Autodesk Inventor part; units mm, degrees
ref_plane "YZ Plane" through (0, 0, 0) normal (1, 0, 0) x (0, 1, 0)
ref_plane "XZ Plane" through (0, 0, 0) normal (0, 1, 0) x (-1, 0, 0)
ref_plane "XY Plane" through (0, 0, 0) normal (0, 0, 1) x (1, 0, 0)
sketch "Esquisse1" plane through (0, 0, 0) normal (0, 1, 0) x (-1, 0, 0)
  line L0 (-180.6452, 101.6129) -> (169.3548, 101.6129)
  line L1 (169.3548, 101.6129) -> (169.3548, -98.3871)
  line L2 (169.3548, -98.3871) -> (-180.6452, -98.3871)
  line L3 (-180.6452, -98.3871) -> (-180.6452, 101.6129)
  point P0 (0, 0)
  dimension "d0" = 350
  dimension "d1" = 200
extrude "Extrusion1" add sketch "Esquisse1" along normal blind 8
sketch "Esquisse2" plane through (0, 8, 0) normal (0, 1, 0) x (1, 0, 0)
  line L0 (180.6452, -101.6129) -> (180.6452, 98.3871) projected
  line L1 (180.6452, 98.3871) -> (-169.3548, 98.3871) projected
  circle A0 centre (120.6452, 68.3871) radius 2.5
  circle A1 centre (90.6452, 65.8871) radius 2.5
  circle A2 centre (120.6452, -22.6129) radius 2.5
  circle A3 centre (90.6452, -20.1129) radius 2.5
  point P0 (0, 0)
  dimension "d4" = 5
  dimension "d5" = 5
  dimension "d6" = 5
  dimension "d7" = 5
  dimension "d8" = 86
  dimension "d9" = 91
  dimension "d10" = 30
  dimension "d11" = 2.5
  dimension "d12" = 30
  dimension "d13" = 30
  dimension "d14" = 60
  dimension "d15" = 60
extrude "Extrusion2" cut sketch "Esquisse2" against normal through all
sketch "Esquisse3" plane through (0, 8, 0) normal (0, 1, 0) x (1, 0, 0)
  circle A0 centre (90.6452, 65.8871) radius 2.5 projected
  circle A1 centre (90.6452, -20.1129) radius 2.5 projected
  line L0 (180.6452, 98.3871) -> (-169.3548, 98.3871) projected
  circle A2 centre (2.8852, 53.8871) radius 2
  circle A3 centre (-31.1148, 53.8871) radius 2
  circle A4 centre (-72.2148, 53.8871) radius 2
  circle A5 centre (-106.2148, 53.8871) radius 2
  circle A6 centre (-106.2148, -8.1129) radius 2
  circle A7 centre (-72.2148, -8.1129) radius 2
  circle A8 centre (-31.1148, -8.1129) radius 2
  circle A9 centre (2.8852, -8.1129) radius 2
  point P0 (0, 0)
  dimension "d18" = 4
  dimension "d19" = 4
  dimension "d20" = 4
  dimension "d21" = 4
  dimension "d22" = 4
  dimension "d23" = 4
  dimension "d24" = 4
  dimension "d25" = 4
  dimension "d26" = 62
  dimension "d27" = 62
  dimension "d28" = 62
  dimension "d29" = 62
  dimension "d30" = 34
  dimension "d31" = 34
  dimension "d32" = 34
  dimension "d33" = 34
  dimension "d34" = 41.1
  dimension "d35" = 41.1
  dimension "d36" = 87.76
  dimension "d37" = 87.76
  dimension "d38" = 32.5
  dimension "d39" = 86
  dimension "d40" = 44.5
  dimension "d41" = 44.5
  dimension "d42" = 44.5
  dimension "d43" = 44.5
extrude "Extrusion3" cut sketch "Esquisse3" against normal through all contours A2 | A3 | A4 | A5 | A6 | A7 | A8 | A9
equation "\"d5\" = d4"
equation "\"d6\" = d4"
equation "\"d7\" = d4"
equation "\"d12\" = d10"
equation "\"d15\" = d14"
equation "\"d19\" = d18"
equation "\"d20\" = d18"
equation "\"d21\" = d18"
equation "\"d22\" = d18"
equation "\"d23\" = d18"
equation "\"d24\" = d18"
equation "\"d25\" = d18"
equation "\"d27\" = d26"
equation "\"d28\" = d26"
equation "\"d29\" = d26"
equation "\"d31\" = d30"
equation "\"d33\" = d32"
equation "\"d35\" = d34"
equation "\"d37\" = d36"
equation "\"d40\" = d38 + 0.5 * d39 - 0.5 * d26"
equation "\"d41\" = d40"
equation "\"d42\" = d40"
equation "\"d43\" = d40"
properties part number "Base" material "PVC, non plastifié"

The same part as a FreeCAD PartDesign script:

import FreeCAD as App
import Part
import Sketcher
from FreeCAD import Vector

doc = App.newDocument("Part")
params = doc.addObject("Spreadsheet::Sheet", "Params")
for row, (alias, value) in enumerate([
    ("sketch1_width", "350 mm"),
    ("sketch1_height", "200 mm"),
    ("pad1_length", "8 mm"),
    ("sketch2_diameter", "5 mm"),
    ("sketch3_diameter", "4 mm"),
], start=1):
    params.set(f"A{row}", alias)
    params.set(f"B{row}", "=" + value)
    params.setAlias(f"B{row}", alias)

body = doc.addObject("PartDesign::Body", "Body")

# Sketch on XZ plane
sketch1 = body.newObject("Sketcher::SketchObject", "Sketch")
sketch1.AttachmentSupport = (doc.getObject("XZ_Plane"), [""])
sketch1.MapMode = "FlatFace"
sketch1.addGeometry([
    Part.LineSegment(Vector(-169, 102, 0), Vector(181, 102, 0)),
    Part.LineSegment(Vector(181, 102, 0), Vector(181, -98, 0)),
    Part.LineSegment(Vector(181, -98, 0), Vector(-169, -98, 0)),
    Part.LineSegment(Vector(-169, -98, 0), Vector(-169, 102, 0)),
], False)
sketch1.addConstraint([
    Sketcher.Constraint("Coincident", 0, 2, 1, 1),
    Sketcher.Constraint("Coincident", 1, 2, 2, 1),
    Sketcher.Constraint("Coincident", 2, 2, 3, 1),
    Sketcher.Constraint("Coincident", 3, 2, 0, 1),
    Sketcher.Constraint("Horizontal", 0),
    Sketcher.Constraint("Vertical", 1),
    Sketcher.Constraint("Horizontal", 2),
    Sketcher.Constraint("Vertical", 3),
    Sketcher.Constraint("DistanceX", 0, 1, 0, 2, 350.0),
    Sketcher.Constraint("DistanceY", 1, 2, 1, 1, 200.0),
    Sketcher.Constraint("DistanceY", -1, 1, 0, 2, 101.613),
    Sketcher.Constraint("DistanceX", -1, 1, 0, 2, 180.6452),
])
sketch1.setExpression("Constraints[8]", "Params.sketch1_width")
sketch1.setExpression("Constraints[9]", "Params.sketch1_height")
pad1 = body.newObject("PartDesign::Pad", "Pad")
pad1.Profile = sketch1
pad1.setExpression("Length", "Params.pad1_length")
pad1.Reversed = True

# Sketch on XZ plane
sketch2 = body.newObject("Sketcher::SketchObject", "Sketch001")
sketch2.AttachmentSupport = (doc.getObject("XZ_Plane"), [""])
sketch2.MapMode = "FlatFace"
sketch2.AttachmentOffset = App.Placement(Vector(0, 0, -8), App.Rotation())
sketch2.addGeometry([
    Part.Circle(Vector(120.6, -68.4, 0), Vector(0, 0, 1), 2.5),
    Part.Circle(Vector(90.6, -65.9, 0), Vector(0, 0, 1), 2.5),
    Part.Circle(Vector(120.6, 22.6, 0), Vector(0, 0, 1), 2.5),
    Part.Circle(Vector(90.6, 20.1, 0), Vector(0, 0, 1), 2.5),
], False)
sketch2.addConstraint([
    Sketcher.Constraint("Equal", 0, 1),
    Sketcher.Constraint("Equal", 1, 2),
    Sketcher.Constraint("Equal", 2, 3),
    Sketcher.Constraint("Vertical", 0, 3, 2, 3),
    Sketcher.Constraint("Vertical", 1, 3, 3, 3),
    Sketcher.Constraint("Diameter", 0, 5.0),
    Sketcher.Constraint("DistanceX", 1, 3, 0, 3, 30.0),
    Sketcher.Constraint("DistanceY", 0, 3, 2, 3, 91.0),
    Sketcher.Constraint("DistanceY", 1, 3, 3, 3, 86.0),
    Sketcher.Constraint("DistanceY", 0, 3, 1, 3, 2.5),
    Sketcher.Constraint("DistanceY", 0, 3, -1, 1, 68.387),
    Sketcher.Constraint("DistanceX", -1, 1, 0, 3, 120.6452),
])
sketch2.setExpression("Constraints[5]", "Params.sketch2_diameter")
pocket1 = body.newObject("PartDesign::Pocket", "Pocket")
pocket1.Profile = sketch2
pocket1.Type = "ThroughAll"
pocket1.Reversed = True

# Sketch on XZ plane
sketch3 = body.newObject("Sketcher::SketchObject", "Sketch002")
sketch3.AttachmentSupport = (doc.getObject("XZ_Plane"), [""])
sketch3.MapMode = "FlatFace"
sketch3.AttachmentOffset = App.Placement(Vector(0, 0, -8), App.Rotation())
sketch3.addGeometry([
    Part.Circle(Vector(2.9, -53.9, 0), Vector(0, 0, 1), 2),  # 0
    Part.Circle(Vector(-31.1, -53.9, 0), Vector(0, 0, 1), 2),  # 1
    Part.Circle(Vector(-72.2, -53.9, 0), Vector(0, 0, 1), 2),  # 2
    Part.Circle(Vector(-106.2, -53.9, 0), Vector(0, 0, 1), 2),  # 3
    Part.Circle(Vector(-106.2, 8.1, 0), Vector(0, 0, 1), 2),  # 4
    Part.Circle(Vector(-72.2, 8.1, 0), Vector(0, 0, 1), 2),  # 5
    Part.Circle(Vector(-31.1, 8.1, 0), Vector(0, 0, 1), 2),  # 6
    Part.Circle(Vector(2.9, 8.1, 0), Vector(0, 0, 1), 2),  # 7
], False)
sketch3.addConstraint([
    Sketcher.Constraint("Equal", 0, 1),
    Sketcher.Constraint("Equal", 1, 2),
    Sketcher.Constraint("Equal", 2, 3),
    Sketcher.Constraint("Equal", 3, 4),
    Sketcher.Constraint("Equal", 4, 5),
    Sketcher.Constraint("Equal", 5, 6),
    Sketcher.Constraint("Equal", 6, 7),
    Sketcher.Constraint("Horizontal", 0, 3, 1, 3),
    Sketcher.Constraint("Horizontal", 1, 3, 2, 3),
    Sketcher.Constraint("Horizontal", 2, 3, 3, 3),
    Sketcher.Constraint("Horizontal", 4, 3, 5, 3),
    Sketcher.Constraint("Horizontal", 5, 3, 6, 3),
    Sketcher.Constraint("Horizontal", 6, 3, 7, 3),
    Sketcher.Constraint("Vertical", 3, 3, 4, 3),
    Sketcher.Constraint("Vertical", 2, 3, 5, 3),
    Sketcher.Constraint("Vertical", 1, 3, 6, 3),
    Sketcher.Constraint("Vertical", 0, 3, 7, 3),
    Sketcher.Constraint("Diameter", 0, 4.0),
    Sketcher.Constraint("DistanceX", 1, 3, 0, 3, 34.0),
    Sketcher.Constraint("DistanceX", 3, 3, 2, 3, 34.0),
    Sketcher.Constraint("DistanceY", 3, 3, 4, 3, 62.0),
    Sketcher.Constraint("DistanceX", 2, 3, 1, 3, 41.1),
    Sketcher.Constraint("DistanceY", 0, 3, -1, 1, 53.887),
    Sketcher.Constraint("DistanceX", -1, 1, 0, 3, 2.8852),
])
sketch3.setExpression("Constraints[17]", "Params.sketch3_diameter")
pocket2 = body.newObject("PartDesign::Pocket", "Pocket001")
pocket2.Profile = sketch3
pocket2.Type = "ThroughAll"
pocket2.Reversed = True

doc.recompute()
